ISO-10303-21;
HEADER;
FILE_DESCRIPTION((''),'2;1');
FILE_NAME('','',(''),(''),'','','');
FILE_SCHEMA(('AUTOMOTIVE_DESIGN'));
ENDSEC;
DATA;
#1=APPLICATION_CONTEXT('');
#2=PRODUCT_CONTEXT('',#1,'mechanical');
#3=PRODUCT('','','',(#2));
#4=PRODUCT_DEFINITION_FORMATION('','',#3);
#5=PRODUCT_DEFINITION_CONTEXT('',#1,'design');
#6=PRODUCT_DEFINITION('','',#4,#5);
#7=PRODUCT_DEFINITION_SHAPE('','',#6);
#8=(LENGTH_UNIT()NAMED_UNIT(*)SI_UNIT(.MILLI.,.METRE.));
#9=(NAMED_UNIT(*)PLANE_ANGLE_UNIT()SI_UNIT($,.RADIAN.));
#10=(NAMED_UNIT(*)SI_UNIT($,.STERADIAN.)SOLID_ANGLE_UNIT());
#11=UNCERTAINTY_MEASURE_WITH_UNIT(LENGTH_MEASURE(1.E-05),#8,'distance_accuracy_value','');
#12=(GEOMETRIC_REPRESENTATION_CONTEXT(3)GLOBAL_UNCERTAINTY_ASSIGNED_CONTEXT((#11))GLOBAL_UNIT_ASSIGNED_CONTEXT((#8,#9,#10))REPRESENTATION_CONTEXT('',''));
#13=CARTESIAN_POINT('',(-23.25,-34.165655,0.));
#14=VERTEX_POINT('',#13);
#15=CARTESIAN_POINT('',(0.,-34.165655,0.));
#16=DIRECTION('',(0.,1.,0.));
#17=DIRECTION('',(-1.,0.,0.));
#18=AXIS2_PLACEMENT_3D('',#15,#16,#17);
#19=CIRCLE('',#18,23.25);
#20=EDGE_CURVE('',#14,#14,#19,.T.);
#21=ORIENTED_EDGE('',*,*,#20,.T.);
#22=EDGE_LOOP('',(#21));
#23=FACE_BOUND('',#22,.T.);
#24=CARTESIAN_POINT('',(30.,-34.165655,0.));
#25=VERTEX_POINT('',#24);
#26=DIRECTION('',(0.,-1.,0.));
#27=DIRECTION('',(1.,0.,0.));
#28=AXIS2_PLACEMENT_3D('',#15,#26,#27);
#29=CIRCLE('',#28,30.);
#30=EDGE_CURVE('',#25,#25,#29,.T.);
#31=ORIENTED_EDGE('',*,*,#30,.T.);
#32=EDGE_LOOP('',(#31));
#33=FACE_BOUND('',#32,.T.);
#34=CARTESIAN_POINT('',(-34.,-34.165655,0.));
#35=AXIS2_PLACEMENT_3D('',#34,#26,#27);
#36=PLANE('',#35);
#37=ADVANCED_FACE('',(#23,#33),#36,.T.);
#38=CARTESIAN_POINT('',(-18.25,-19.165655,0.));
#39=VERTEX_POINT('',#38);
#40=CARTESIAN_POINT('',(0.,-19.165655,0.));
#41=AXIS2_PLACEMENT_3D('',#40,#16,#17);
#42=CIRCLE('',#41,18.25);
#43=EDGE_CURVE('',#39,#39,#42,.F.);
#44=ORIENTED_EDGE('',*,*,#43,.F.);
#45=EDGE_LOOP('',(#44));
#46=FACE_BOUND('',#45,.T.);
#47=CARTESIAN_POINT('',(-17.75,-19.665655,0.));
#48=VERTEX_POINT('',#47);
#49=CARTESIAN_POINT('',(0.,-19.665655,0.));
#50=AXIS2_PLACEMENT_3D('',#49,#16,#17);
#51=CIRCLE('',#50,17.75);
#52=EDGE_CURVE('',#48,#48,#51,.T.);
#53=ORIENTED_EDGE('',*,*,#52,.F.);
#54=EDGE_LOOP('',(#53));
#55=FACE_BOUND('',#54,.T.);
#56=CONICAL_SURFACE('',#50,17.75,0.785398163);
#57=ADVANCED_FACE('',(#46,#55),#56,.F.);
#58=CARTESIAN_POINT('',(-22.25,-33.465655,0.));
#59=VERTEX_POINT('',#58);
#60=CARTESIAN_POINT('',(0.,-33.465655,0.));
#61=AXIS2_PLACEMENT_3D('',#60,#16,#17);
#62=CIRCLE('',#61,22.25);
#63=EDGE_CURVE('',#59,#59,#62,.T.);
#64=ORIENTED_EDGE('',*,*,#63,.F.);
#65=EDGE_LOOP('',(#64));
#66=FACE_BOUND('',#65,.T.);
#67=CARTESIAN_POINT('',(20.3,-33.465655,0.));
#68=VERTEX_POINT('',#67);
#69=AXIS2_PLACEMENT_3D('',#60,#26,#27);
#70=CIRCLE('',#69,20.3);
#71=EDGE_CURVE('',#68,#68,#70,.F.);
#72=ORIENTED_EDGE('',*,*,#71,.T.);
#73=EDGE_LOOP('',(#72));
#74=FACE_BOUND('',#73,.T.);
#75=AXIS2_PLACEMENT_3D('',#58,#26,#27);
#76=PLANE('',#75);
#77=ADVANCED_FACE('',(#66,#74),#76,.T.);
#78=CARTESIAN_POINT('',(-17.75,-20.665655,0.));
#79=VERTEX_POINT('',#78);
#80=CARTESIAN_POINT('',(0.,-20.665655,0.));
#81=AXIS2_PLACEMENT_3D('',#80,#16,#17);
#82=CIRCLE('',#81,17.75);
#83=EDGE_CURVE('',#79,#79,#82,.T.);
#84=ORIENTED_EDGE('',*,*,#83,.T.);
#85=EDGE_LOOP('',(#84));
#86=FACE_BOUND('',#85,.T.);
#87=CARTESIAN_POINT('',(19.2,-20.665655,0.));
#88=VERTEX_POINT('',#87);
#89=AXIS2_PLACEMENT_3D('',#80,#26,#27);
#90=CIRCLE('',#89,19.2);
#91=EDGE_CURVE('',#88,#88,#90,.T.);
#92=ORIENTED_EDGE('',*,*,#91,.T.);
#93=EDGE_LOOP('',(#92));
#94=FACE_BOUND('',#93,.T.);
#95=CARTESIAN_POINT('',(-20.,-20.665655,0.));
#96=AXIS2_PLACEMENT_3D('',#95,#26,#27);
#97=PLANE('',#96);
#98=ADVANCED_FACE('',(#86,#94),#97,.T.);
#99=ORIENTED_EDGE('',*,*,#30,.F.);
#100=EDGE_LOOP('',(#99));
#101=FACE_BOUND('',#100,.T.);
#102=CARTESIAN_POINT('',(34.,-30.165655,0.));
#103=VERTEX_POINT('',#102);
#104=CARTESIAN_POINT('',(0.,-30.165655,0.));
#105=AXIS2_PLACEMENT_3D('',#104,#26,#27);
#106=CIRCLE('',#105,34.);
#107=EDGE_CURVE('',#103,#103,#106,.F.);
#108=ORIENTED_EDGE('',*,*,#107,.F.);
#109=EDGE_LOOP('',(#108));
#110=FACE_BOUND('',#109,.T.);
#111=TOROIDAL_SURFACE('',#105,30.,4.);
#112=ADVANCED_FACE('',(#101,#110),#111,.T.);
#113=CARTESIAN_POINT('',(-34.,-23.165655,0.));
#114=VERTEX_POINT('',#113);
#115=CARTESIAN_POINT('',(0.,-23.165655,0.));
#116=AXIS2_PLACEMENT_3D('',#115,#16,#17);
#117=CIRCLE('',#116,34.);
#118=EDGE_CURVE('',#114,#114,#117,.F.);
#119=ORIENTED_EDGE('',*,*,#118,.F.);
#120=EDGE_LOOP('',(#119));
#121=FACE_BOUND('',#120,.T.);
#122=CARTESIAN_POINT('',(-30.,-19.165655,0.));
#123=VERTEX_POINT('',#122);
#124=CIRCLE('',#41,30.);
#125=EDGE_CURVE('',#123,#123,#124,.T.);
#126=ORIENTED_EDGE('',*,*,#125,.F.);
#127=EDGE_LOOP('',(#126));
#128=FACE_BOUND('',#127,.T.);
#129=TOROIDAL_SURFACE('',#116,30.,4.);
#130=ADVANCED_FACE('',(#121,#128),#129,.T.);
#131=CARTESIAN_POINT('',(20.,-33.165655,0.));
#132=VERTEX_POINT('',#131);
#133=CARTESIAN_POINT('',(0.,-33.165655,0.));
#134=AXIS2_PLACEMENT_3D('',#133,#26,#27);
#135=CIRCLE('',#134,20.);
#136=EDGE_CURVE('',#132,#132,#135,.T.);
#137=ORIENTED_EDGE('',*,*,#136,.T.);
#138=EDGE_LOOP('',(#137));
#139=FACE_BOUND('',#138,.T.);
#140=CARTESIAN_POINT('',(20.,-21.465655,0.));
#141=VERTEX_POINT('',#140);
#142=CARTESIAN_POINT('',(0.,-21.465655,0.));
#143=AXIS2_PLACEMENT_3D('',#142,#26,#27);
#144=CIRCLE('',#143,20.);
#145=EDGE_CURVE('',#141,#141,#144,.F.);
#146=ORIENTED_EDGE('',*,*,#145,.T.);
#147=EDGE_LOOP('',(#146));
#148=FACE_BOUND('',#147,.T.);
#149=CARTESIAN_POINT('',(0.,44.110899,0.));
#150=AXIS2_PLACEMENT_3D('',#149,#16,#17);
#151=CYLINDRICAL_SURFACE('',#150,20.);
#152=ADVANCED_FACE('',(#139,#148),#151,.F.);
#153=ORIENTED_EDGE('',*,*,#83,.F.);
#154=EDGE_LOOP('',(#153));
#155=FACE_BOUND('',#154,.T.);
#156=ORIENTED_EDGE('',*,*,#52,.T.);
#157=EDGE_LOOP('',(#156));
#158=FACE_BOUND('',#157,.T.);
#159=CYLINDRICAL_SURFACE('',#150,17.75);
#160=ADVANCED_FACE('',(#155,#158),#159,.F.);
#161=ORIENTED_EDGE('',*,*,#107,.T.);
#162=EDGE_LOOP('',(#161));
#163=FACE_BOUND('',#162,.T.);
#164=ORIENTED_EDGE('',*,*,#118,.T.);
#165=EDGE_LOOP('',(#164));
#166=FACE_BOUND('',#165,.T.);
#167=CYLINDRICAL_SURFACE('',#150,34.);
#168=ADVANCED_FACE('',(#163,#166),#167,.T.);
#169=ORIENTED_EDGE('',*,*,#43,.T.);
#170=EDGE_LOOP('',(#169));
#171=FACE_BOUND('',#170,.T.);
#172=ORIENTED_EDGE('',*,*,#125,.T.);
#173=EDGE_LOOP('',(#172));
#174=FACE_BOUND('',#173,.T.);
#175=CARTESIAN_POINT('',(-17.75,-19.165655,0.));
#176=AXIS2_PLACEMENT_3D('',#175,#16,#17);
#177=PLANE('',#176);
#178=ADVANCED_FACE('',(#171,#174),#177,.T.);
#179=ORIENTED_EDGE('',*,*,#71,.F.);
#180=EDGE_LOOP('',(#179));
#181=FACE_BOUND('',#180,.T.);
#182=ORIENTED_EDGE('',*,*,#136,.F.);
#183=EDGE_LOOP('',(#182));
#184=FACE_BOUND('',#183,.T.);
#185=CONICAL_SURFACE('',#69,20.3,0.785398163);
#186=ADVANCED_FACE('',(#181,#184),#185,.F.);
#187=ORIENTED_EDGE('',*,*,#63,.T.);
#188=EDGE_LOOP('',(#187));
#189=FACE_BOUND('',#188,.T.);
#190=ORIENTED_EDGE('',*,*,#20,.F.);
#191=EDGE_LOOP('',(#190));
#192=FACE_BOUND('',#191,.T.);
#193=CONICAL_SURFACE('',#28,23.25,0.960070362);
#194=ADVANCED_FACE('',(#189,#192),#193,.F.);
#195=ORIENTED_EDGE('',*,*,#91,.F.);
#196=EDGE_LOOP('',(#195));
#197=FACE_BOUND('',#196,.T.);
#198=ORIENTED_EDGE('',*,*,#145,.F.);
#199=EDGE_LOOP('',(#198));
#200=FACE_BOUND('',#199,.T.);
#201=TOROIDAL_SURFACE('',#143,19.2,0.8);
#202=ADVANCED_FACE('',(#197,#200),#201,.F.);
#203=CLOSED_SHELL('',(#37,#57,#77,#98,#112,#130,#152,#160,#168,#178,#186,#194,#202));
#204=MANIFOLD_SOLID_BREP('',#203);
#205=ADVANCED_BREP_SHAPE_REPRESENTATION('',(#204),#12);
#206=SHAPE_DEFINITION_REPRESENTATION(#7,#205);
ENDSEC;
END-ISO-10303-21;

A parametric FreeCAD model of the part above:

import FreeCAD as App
import Part
import Sketcher

V = App.Vector
Q = App.Units.Quantity


def edges_at(feature, points):
    """Names of the edges that pass closest to the given points."""
    edges = feature.Shape.Edges
    near = lambda p: min(range(len(edges)), key=lambda i: edges[i].distToShape(Part.Vertex(*p))[0])
    return sorted({f"Edge{near(p) + 1}" for p in points})

doc = App.newDocument("Part")
params = doc.addObject("Spreadsheet::Sheet", "Params")
for row, (alias, value) in enumerate([
    ("sketch1_height", "15 mm"),
    ("sketch1_height2", "12.8 mm"),
    ("sketch1_height3", "1.5 mm"),
    ("sketch1_width", "10.75 mm"),
    ("revolution_angle", "360 deg"),
    ("fillet_radius", "4 mm"),
    ("chamfer_size", "0.5 mm"),
    ("chamfer2_size", "0.3 mm"),
    ("fillet2_radius", "0.8 mm"),
], start=1):
    params.set(f"A{row}", alias)
    params.set(f"B{row}", "=" + value)
    params.setAlias(f"B{row}", alias)

body = doc.addObject("PartDesign::Body", "Body")

# Sketch on XY plane
sketch1 = doc.addObject("Sketcher::SketchObject", "Sketch")
body.addObject(sketch1)
sketch1.AttachmentSupport = (doc.XY_Plane, [""])
sketch1.MapMode = "FlatFace"
sketch1.addGeometry([
    Part.LineSegment(V(-34, -19.2, 0), V(-34, -34.2, 0)),  # 0
    Part.LineSegment(V(-34, -34.2, 0), V(-23.2, -34.2, 0)),  # 1
    Part.LineSegment(V(-23.2, -34.2, 0), V(-22.2, -33.5, 0)),  # 2
    Part.LineSegment(V(-22.2, -33.5, 0), V(-20, -33.5, 0)),  # 3
    Part.LineSegment(V(-20, -33.5, 0), V(-20, -20.7, 0)),  # 4
    Part.LineSegment(V(-20, -20.7, 0), V(-17.8, -20.7, 0)),  # 5
    Part.LineSegment(V(-17.8, -20.7, 0), V(-17.8, -19.2, 0)),  # 6
    Part.LineSegment(V(-17.8, -19.2, 0), V(-34, -19.2, 0)),  # 7
], False)
sketch1.addConstraint([
    Sketcher.Constraint("Coincident", 0, 2, 1, 1),
    Sketcher.Constraint("Coincident", 1, 2, 2, 1),
    Sketcher.Constraint("Coincident", 2, 2, 3, 1),
    Sketcher.Constraint("Coincident", 3, 2, 4, 1),
    Sketcher.Constraint("Coincident", 4, 2, 5, 1),
    Sketcher.Constraint("Coincident", 5, 2, 6, 1),
    Sketcher.Constraint("Coincident", 6, 2, 7, 1),
    Sketcher.Constraint("Coincident", 7, 2, 0, 1),
    Sketcher.Constraint("Vertical", 0),
    Sketcher.Constraint("Horizontal", 1),
    Sketcher.Constraint("Horizontal", 3),
    Sketcher.Constraint("Vertical", 4),
    Sketcher.Constraint("Horizontal", 5),
    Sketcher.Constraint("Vertical", 6),
    Sketcher.Constraint("Horizontal", 7),
    Sketcher.Constraint("Equal", 3, 5),
    Sketcher.Constraint("DistanceY", 0, 2, 0, 1, Q("15 mm")),
    Sketcher.Constraint("DistanceY", 4, 1, 4, 2, Q("12.8 mm")),
    Sketcher.Constraint("DistanceY", 6, 1, 6, 2, Q("1.5 mm")),
    Sketcher.Constraint("DistanceX", 0, 2, -1, 1, Q("34 mm")),
    Sketcher.Constraint("DistanceX", 3, 2, -1, 1, Q("20 mm")),
    Sketcher.Constraint("DistanceX", 1, 2, 2, 2, Q("1 mm")),
    Sketcher.Constraint("DistanceX", 1, 1, 1, 2, Q("10.75 mm")),
    Sketcher.Constraint("DistanceY", 0, 2, -1, 1, Q("34.165655 mm")),
])
sketch1.setExpression("Constraints[16]", "Params.sketch1_height")
sketch1.setExpression("Constraints[17]", "Params.sketch1_height2")
sketch1.setExpression("Constraints[18]", "Params.sketch1_height3")
sketch1.setExpression("Constraints[22]", "Params.sketch1_width")
revolution = doc.addObject("PartDesign::Revolution", "Revolution")
body.addObject(revolution)
revolution.Profile = sketch1
revolution.ReferenceAxis = (sketch1, ["V_Axis"])
revolution.setExpression("Angle", "Params.revolution_angle")
doc.recompute()

fillet = doc.addObject("PartDesign::Fillet", "Fillet")
body.addObject(fillet)
fillet.Base = (revolution, edges_at(revolution, [(34, -34.166, 0), (34, -19.166, 0)]))
fillet.setExpression("Radius", "Params.fillet_radius")
doc.recompute()

chamfer = doc.addObject("PartDesign::Chamfer", "Chamfer")
body.addObject(chamfer)
chamfer.Base = (fillet, edges_at(fillet, [(17.75, -19.166, 0)]))
chamfer.setExpression("Size", "Params.chamfer_size")
doc.recompute()

chamfer2 = doc.addObject("PartDesign::Chamfer", "Chamfer001")
body.addObject(chamfer2)
chamfer2.Base = (chamfer, edges_at(chamfer, [(20, -33.466, 0)]))
chamfer2.setExpression("Size", "Params.chamfer2_size")
doc.recompute()

fillet2 = doc.addObject("PartDesign::Fillet", "Fillet001")
body.addObject(fillet2)
fillet2.Base = (chamfer2, edges_at(chamfer2, [(20, -20.666, 0)]))
fillet2.setExpression("Radius", "Params.fillet2_radius")

doc.recompute()
